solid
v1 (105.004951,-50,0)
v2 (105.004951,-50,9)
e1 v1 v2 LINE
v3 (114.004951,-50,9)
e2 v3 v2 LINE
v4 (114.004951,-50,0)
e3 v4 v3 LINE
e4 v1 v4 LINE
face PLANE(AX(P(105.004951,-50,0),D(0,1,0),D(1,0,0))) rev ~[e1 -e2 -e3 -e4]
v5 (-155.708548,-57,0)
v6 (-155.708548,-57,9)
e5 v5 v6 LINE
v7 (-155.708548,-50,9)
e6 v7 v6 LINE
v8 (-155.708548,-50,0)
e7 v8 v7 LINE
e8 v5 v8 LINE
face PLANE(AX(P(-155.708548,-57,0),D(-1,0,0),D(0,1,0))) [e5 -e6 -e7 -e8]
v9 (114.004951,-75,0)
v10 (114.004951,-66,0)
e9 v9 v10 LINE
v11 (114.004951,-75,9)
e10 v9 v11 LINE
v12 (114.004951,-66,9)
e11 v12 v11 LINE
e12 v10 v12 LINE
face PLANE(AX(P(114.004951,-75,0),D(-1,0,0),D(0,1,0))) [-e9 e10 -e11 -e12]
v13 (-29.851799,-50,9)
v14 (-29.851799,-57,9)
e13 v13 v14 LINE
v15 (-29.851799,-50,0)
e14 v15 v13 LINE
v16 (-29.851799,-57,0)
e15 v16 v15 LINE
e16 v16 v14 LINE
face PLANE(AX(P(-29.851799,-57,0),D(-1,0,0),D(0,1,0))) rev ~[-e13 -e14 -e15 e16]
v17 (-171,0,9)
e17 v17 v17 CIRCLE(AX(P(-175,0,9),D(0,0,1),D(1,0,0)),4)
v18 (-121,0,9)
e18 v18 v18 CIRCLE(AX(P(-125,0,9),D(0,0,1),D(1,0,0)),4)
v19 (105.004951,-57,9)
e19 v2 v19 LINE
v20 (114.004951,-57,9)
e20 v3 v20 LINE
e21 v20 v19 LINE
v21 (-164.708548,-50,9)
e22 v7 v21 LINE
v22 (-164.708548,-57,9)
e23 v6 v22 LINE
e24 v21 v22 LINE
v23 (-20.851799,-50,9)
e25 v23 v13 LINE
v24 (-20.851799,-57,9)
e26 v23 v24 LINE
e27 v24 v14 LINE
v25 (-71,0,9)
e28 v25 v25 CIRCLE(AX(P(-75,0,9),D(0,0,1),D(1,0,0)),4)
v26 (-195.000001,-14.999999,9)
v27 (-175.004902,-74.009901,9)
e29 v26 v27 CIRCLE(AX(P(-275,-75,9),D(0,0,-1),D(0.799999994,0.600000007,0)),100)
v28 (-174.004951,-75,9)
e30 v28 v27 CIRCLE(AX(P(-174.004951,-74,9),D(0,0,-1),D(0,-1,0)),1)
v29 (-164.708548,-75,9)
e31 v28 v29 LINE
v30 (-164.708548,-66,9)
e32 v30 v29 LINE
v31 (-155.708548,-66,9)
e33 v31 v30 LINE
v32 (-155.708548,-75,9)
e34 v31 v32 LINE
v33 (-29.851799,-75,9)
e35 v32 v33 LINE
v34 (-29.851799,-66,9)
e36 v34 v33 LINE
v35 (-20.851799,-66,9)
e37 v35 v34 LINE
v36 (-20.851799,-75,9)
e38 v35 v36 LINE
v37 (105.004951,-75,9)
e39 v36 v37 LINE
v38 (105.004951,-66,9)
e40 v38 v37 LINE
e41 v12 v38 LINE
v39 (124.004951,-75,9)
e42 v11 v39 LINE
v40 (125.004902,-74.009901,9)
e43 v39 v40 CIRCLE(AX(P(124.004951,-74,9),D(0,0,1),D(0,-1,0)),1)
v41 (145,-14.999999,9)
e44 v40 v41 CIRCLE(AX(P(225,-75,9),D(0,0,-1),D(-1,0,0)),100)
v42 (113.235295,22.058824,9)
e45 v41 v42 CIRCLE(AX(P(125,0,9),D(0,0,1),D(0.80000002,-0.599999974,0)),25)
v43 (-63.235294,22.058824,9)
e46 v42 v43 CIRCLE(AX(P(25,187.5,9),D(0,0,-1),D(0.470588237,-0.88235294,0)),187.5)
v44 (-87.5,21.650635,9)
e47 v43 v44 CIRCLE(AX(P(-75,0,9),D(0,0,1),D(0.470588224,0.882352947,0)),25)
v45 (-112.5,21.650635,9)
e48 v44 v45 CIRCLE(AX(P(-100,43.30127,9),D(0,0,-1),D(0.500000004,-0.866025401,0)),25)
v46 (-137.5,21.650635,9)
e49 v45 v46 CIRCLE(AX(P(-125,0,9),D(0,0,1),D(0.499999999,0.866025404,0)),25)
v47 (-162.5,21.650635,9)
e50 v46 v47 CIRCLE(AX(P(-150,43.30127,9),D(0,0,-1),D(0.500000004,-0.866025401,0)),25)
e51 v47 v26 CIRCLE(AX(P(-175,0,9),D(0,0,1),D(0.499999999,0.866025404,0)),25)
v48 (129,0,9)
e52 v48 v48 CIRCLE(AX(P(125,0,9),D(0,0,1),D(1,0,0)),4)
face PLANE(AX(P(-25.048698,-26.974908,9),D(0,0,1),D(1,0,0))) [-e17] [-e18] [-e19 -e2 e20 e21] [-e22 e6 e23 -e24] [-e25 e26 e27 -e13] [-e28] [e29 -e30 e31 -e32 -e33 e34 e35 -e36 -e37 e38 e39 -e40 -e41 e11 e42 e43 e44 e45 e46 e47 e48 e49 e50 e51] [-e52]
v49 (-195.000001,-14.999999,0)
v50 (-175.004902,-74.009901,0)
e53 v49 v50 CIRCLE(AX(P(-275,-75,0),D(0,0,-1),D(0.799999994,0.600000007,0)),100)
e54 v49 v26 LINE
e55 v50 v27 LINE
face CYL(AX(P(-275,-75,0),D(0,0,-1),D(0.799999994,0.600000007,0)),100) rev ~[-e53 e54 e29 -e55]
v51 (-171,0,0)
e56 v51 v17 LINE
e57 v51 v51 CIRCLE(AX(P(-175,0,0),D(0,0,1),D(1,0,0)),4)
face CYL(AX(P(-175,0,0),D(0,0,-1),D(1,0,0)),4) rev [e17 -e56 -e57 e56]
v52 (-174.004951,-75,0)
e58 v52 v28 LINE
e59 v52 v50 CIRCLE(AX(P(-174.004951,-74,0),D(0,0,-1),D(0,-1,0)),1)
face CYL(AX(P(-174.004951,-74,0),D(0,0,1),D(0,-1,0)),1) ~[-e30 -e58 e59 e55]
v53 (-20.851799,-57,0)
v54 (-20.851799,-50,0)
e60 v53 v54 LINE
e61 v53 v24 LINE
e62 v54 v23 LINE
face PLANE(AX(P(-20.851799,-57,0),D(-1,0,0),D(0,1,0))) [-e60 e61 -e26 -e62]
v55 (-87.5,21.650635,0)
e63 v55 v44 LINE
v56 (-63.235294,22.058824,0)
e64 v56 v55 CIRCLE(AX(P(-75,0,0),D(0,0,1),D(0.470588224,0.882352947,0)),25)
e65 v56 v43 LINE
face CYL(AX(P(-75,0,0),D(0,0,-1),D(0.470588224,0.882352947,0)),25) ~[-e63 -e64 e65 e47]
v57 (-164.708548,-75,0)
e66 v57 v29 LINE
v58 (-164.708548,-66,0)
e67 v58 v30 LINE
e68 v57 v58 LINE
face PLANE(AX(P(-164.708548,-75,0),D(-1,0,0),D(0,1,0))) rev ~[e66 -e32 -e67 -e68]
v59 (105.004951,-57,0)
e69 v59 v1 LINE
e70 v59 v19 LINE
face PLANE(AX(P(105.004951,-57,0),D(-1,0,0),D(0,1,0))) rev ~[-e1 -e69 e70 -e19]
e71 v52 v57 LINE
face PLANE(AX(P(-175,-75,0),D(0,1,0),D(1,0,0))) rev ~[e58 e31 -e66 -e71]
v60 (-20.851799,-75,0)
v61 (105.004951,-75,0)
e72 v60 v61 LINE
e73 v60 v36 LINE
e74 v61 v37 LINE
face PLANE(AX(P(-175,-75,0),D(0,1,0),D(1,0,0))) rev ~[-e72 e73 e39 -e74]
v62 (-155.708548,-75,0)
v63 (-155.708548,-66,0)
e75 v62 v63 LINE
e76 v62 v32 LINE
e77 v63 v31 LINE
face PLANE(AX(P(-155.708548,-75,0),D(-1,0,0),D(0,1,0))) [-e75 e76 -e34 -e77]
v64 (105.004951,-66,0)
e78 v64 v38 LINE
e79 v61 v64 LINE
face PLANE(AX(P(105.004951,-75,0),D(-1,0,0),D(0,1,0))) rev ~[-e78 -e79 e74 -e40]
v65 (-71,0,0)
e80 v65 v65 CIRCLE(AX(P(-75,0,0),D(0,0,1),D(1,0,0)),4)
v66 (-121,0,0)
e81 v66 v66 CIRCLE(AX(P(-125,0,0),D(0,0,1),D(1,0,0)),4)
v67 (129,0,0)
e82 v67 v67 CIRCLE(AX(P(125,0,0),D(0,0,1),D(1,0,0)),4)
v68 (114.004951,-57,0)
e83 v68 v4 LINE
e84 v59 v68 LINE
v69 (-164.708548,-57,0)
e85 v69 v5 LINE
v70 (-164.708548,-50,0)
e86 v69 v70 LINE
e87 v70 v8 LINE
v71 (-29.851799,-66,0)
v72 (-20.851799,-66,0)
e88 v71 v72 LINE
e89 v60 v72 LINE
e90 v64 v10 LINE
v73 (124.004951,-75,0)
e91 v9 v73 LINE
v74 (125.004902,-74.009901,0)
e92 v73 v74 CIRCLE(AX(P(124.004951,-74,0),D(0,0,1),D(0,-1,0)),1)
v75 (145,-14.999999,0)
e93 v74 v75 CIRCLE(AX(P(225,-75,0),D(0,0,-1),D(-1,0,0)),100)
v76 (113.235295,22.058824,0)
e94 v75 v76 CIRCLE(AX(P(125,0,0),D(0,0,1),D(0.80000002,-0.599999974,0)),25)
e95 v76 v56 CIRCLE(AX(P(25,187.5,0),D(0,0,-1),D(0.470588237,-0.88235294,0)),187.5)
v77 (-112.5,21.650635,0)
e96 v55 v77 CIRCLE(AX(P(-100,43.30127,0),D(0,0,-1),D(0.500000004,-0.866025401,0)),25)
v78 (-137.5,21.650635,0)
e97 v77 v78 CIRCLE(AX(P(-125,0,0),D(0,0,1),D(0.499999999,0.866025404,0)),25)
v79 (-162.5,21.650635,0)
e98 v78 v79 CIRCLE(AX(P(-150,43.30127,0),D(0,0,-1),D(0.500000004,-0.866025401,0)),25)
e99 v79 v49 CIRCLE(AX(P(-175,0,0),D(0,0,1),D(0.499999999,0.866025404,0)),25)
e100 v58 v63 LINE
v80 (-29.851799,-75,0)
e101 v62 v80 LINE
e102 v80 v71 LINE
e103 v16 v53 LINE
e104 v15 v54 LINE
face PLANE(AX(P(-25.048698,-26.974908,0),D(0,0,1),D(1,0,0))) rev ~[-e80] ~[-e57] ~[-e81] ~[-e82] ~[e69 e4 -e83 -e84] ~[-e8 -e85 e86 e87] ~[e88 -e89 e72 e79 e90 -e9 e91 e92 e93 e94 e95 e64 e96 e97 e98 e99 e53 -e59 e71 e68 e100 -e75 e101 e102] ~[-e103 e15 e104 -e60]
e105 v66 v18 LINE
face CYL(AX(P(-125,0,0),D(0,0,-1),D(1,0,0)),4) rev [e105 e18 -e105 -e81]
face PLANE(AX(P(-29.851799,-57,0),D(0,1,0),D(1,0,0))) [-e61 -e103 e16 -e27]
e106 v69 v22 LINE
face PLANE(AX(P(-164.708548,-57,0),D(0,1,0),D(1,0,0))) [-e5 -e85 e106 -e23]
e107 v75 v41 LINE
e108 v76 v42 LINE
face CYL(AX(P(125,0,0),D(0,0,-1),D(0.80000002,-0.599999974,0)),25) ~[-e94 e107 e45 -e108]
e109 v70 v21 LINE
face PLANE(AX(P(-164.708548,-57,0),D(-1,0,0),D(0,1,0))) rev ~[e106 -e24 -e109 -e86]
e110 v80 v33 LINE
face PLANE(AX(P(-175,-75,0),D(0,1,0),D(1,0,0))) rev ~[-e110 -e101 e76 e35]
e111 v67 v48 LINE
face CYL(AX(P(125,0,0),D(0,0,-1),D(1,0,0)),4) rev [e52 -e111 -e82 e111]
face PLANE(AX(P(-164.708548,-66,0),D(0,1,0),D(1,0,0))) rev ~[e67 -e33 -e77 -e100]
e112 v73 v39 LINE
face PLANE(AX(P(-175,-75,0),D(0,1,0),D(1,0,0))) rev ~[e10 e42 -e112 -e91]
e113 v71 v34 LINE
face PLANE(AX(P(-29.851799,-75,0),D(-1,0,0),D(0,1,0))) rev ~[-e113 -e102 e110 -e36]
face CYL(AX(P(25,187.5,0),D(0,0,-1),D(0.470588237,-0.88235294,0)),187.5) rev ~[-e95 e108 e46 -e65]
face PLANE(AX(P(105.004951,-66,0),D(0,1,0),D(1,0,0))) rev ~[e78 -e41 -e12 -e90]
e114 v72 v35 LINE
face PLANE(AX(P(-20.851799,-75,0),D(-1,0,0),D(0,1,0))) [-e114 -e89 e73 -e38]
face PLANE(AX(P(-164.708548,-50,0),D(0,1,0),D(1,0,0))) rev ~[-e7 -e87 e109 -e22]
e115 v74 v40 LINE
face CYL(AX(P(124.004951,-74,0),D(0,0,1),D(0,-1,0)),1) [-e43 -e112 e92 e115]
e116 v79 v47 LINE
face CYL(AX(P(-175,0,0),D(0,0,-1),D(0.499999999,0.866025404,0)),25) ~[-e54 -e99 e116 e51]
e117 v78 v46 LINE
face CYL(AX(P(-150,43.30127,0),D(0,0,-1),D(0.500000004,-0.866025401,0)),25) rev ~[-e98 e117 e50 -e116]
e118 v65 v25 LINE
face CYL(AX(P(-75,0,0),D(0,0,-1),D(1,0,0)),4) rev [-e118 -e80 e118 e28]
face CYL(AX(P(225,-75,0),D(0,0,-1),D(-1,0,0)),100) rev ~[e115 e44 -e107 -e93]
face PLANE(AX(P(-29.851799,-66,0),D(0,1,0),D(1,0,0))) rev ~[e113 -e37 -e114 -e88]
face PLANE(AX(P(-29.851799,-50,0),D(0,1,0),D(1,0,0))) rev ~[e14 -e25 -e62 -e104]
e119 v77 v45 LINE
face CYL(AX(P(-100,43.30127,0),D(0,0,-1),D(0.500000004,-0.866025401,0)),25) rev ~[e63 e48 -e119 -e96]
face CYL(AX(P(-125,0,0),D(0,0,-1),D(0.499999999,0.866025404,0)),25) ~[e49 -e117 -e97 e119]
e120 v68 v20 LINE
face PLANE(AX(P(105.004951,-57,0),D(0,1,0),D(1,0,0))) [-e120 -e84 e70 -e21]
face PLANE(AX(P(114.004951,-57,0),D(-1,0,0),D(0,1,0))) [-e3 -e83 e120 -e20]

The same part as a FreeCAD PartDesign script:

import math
import FreeCAD as App
import Part
import Sketcher
from FreeCAD import Vector
Q = App.Units.Quantity


def edges_at(feature, points):
    """Names of the edges that pass closest to the given points."""
    edges = feature.Shape.Edges
    near = lambda p: min(range(len(edges)), key=lambda i: edges[i].distToShape(Part.Vertex(*p))[0])
    return sorted({f"Edge{near(p) + 1}" for p in points})


def add_polygon(sketch, points):
    """Adds a closed chain of lines whose ends are joined by coincident constraints."""
    first, n = sketch.GeometryCount, len(points)
    for a, b in zip(points, points[1:] + points[:1]):
        sketch.addGeometry(Part.LineSegment(App.Vector(*a, 0), App.Vector(*b, 0)), False)
    for i in range(n):
        sketch.addConstraint(Sketcher.Constraint("Coincident", first + i, 2, first + (i + 1) % n, 1))

doc = App.newDocument("Part")
body = doc.addObject("PartDesign::Body", "Body")

sketch1 = body.newObject("Sketcher::SketchObject", "Sketch")
sketch1.AttachmentSupport = (doc.getObject("XY_Plane"), [""])
sketch1.MapMode = "FlatFace"
sketch1.addGeometry([
    Part.Circle(Vector(-125, 0, 0), Vector(0, 0, 1), 8),
    Part.Circle(Vector(-125, 0, 0), Vector(0, 0, 1), 4),
], False)
sketch1.addConstraint([
    Sketcher.Constraint("Coincident", 1, 3, 0, 3),
    Sketcher.Constraint("PointOnObject", 0, 3, -1),
    Sketcher.Constraint("Diameter", 0, Q("16 mm")),
    Sketcher.Constraint("Diameter", 1, Q("8 mm")),
    Sketcher.Constraint("DistanceX", 0, 3, -1, 1, Q("125 mm")),
])
pad1 = body.newObject("PartDesign::Pad", "Pad")
pad1.Profile = sketch1
pad1.Length = 9
body2 = doc.addObject("PartDesign::Body", "Body001")

sketch2 = body2.newObject("Sketcher::SketchObject", "Sketch001")
sketch2.AttachmentSupport = (doc.getObject("XY_Plane001"), [""])
sketch2.MapMode = "FlatFace"
sketch2.addGeometry([
    Part.Circle(Vector(125, 0, 0), Vector(0, 0, 1), 8),
    Part.Circle(Vector(125, 0, 0), Vector(0, 0, 1), 4),
], False)
sketch2.addConstraint([
    Sketcher.Constraint("Coincident", 1, 3, 0, 3),
    Sketcher.Constraint("PointOnObject", 0, 3, -1),
    Sketcher.Constraint("Diameter", 0, Q("16 mm")),
    Sketcher.Constraint("Diameter", 1, Q("8 mm")),
    Sketcher.Constraint("DistanceX", -1, 1, 0, 3, Q("125 mm")),
])
pad2 = body2.newObject("PartDesign::Pad", "Pad001")
pad2.Profile = sketch2
pad2.Length = 9
body.AllowCompound = True
doc.recompute()

boolean = body.newObject("PartDesign::Boolean", "Boolean")
boolean.Type = "Fuse"
boolean.addObjects([body2])

sketch3 = body.newObject("Sketcher::SketchObject", "Sketch002")
sketch3.AttachmentSupport = (doc.getObject("XY_Plane"), [""])
sketch3.MapMode = "FlatFace"
sketch3.addGeometry([
    Part.LineSegment(Vector(-175, -75, 0), Vector(125, -75, 0)),
    Part.ArcOfCircle(Part.Circle(Vector(225, -75, 0), Vector(0, 0, 1), 100), math.radians(143), math.radians(180)),
    Part.ArcOfCircle(Part.Circle(Vector(125, 0, 0), Vector(0, 0, 1), 25), math.radians(-37), math.radians(118)),
    Part.ArcOfCircle(Part.Circle(Vector(25, 187.5, 0), Vector(0, 0, 1), 187.5), math.radians(-118), math.radians(-62)),
    Part.ArcOfCircle(Part.Circle(Vector(-75, 0, 0), Vector(0, 0, 1), 25), math.radians(62), math.radians(120)),
    Part.ArcOfCircle(Part.Circle(Vector(-100, 43.3, 0), Vector(0, 0, 1), 25), math.radians(-120), math.radians(-60)),
    Part.ArcOfCircle(Part.Circle(Vector(-125, 0, 0), Vector(0, 0, 1), 25), math.radians(60), math.radians(120)),
    Part.ArcOfCircle(Part.Circle(Vector(-150, 43.3, 0), Vector(0, 0, 1), 25), math.radians(-120), math.radians(-60)),
    Part.ArcOfCircle(Part.Circle(Vector(-175, 0, 0), Vector(0, 0, 1), 25), math.radians(60), math.radians(217)),
    Part.ArcOfCircle(Part.Circle(Vector(-275, -75, 0), Vector(0, 0, 1), 100), math.radians(0), math.radians(37)),
    Part.Circle(Vector(-175, 0, 0), Vector(0, 0, 1), 4),
    Part.Circle(Vector(-125, 0, 0), Vector(0, 0, 1), 4),
    Part.Circle(Vector(-75, 0, 0), Vector(0, 0, 1), 4),
    Part.Circle(Vector(125, 0, 0), Vector(0, 0, 1), 4),
], False)
sketch3.addConstraint([
    Sketcher.Constraint("Coincident", 0, 2, 1, 2),
    Sketcher.Constraint("Tangent", 1, 1, 2, 1),
    Sketcher.Constraint("Tangent", 2, 2, 3, 2),
    Sketcher.Constraint("Tangent", 3, 1, 4, 1),
    Sketcher.Constraint("Tangent", 4, 2, 5, 2),
    Sketcher.Constraint("Tangent", 5, 1, 6, 1),
    Sketcher.Constraint("Tangent", 6, 2, 7, 2),
    Sketcher.Constraint("Tangent", 7, 1, 8, 1),
    Sketcher.Constraint("Tangent", 8, 2, 9, 2),
    Sketcher.Constraint("Coincident", 9, 1, 0, 1),
    Sketcher.Constraint("Horizontal", 0),
    Sketcher.Constraint("Coincident", 10, 3, 8, 3),
    Sketcher.Constraint("Coincident", 11, 3, 6, 3),
    Sketcher.Constraint("Coincident", 12, 3, 4, 3),
    Sketcher.Constraint("Coincident", 13, 3, 2, 3),
    Sketcher.Constraint("Equal", 2, 4),
    Sketcher.Constraint("Equal", 4, 5),
    Sketcher.Constraint("Equal", 5, 6),
    Sketcher.Constraint("Equal", 6, 7),
    Sketcher.Constraint("Equal", 7, 8),
    Sketcher.Constraint("Equal", 1, 9),
    Sketcher.Constraint("Equal", 10, 11),
    Sketcher.Constraint("Equal", 11, 12),
    Sketcher.Constraint("Equal", 12, 13),
    Sketcher.Constraint("Symmetric", 2, 3, 6, 3, -1, 1),
    Sketcher.Constraint("PointOnObject", 2, 3, -1),
    Sketcher.Constraint("PointOnObject", 4, 3, -1),
    Sketcher.Constraint("PointOnObject", 8, 3, -1),
    Sketcher.Constraint("Horizontal", 5, 3, 7, 3),
    Sketcher.Constraint("Horizontal", 1, 3, 9, 3),
    Sketcher.Constraint("Horizontal", 9, 3, 0, 2),
    Sketcher.Constraint("Vertical", 13, 3, 0, 2),
    Sketcher.Constraint("Diameter", 10, Q("8 mm")),
    Sketcher.Constraint("Radius", 1, Q("100 mm")),
    Sketcher.Constraint("Radius", 2, Q("25 mm")),
    Sketcher.Constraint("Radius", 3, Q("187.5 mm")),
    Sketcher.Constraint("DistanceX", 0, 1, 0, 2, Q("300 mm")),
    Sketcher.Constraint("DistanceX", -1, 1, 1, 3, Q("225 mm")),
])
pad3 = body.newObject("PartDesign::Pad", "Pad002")
pad3.Profile = sketch3
pad3.Length = 9
doc.recompute()

fillet = body.newObject("PartDesign::Fillet", "Fillet")
fillet.Base = (pad3, edges_at(pad3, [(-175, -75, 4.5), (125, -75, 4.5)]))
fillet.Radius = 1

sketch4 = body.newObject("Sketcher::SketchObject", "Sketch003")
sketch4.AttachmentSupport = (doc.getObject("XY_Plane"), [""])
sketch4.MapMode = "FlatFace"
add_polygon(sketch4, [(-165, -66), (-165, -75), (-156, -75), (-156, -66)])
add_polygon(sketch4, [(-30, -66), (-30, -75), (-21, -75), (-21, -66)])
add_polygon(sketch4, [(105, -66), (105, -75), (114, -75), (114, -66)])
add_polygon(sketch4, [(-165, -50), (-165, -57), (-156, -57), (-156, -50)])
add_polygon(sketch4, [(-30, -50), (-30, -57), (-21, -57), (-21, -50)])
add_polygon(sketch4, [(105, -50), (105, -57), (114, -57), (114, -50)])
sketch4.addConstraint([
    Sketcher.Constraint("Vertical", 0),
    Sketcher.Constraint("Horizontal", 1),
    Sketcher.Constraint("Vertical", 2),
    Sketcher.Constraint("Horizontal", 3),
    Sketcher.Constraint("Vertical", 4),
    Sketcher.Constraint("Horizontal", 5),
    Sketcher.Constraint("Vertical", 6),
    Sketcher.Constraint("Horizontal", 7),
    Sketcher.Constraint("Vertical", 8),
    Sketcher.Constraint("Horizontal", 9),
    Sketcher.Constraint("Vertical", 10),
    Sketcher.Constraint("Horizontal", 11),
    Sketcher.Constraint("Vertical", 12),
    Sketcher.Constraint("Horizontal", 13),
    Sketcher.Constraint("Vertical", 14),
    Sketcher.Constraint("Horizontal", 15),
    Sketcher.Constraint("Vertical", 16),
    Sketcher.Constraint("Horizontal", 17),
    Sketcher.Constraint("Vertical", 18),
    Sketcher.Constraint("Horizontal", 19),
    Sketcher.Constraint("Vertical", 20),
    Sketcher.Constraint("Horizontal", 21),
    Sketcher.Constraint("Vertical", 22),
    Sketcher.Constraint("Horizontal", 23),
    Sketcher.Constraint("Horizontal", 1, 2, 4, 2),
    Sketcher.Constraint("Horizontal", 3, 2, 6, 2),
    Sketcher.Constraint("Horizontal", 5, 2, 8, 2),
    Sketcher.Constraint("Horizontal", 7, 2, 10, 2),
    Sketcher.Constraint("Horizontal", 13, 2, 16, 2),
    Sketcher.Constraint("Horizontal", 15, 2, 18, 2),
    Sketcher.Constraint("Horizontal", 17, 2, 20, 2),
    Sketcher.Constraint("Horizontal", 19, 2, 22, 2),
    Sketcher.Constraint("Vertical", 3, 2, 12, 2),
    Sketcher.Constraint("Vertical", 2, 2, 13, 2),
    Sketcher.Constraint("Vertical", 7, 2, 16, 2),
    Sketcher.Constraint("Vertical", 6, 2, 17, 2),
    Sketcher.Constraint("Vertical", 11, 2, 20, 2),
    Sketcher.Constraint("Vertical", 10, 2, 21, 2),
    Sketcher.Constraint("Equal", 3, 5),
    Sketcher.Constraint("Equal", 7, 9),
    Sketcher.Constraint("Equal", 23, 0),
    Sketcher.Constraint("DistanceX", 1, 1, 1, 2, Q("9 mm")),
    Sketcher.Constraint("DistanceY", 12, 2, 12, 1, Q("7 mm")),
    Sketcher.Constraint("DistanceY", 0, 2, -1, 1, Q("75 mm")),
    Sketcher.Constraint("DistanceY", 12, 2, -1, 1, Q("57 mm")),
    Sketcher.Constraint("DistanceX", 4, 2, -1, 1, Q("29.851799 mm")),
    Sketcher.Constraint("DistanceX", 1, 2, 8, 2, Q("260.713499 mm")),
    Sketcher.Constraint("DistanceX", 0, 2, -1, 1, Q("164.708548 mm")),
])
pocket1 = body.newObject("PartDesign::Pocket", "Pocket")
pocket1.Profile = sketch4
pocket1.Type = "ThroughAll"
pocket1.Reversed = True

doc.recompute()
